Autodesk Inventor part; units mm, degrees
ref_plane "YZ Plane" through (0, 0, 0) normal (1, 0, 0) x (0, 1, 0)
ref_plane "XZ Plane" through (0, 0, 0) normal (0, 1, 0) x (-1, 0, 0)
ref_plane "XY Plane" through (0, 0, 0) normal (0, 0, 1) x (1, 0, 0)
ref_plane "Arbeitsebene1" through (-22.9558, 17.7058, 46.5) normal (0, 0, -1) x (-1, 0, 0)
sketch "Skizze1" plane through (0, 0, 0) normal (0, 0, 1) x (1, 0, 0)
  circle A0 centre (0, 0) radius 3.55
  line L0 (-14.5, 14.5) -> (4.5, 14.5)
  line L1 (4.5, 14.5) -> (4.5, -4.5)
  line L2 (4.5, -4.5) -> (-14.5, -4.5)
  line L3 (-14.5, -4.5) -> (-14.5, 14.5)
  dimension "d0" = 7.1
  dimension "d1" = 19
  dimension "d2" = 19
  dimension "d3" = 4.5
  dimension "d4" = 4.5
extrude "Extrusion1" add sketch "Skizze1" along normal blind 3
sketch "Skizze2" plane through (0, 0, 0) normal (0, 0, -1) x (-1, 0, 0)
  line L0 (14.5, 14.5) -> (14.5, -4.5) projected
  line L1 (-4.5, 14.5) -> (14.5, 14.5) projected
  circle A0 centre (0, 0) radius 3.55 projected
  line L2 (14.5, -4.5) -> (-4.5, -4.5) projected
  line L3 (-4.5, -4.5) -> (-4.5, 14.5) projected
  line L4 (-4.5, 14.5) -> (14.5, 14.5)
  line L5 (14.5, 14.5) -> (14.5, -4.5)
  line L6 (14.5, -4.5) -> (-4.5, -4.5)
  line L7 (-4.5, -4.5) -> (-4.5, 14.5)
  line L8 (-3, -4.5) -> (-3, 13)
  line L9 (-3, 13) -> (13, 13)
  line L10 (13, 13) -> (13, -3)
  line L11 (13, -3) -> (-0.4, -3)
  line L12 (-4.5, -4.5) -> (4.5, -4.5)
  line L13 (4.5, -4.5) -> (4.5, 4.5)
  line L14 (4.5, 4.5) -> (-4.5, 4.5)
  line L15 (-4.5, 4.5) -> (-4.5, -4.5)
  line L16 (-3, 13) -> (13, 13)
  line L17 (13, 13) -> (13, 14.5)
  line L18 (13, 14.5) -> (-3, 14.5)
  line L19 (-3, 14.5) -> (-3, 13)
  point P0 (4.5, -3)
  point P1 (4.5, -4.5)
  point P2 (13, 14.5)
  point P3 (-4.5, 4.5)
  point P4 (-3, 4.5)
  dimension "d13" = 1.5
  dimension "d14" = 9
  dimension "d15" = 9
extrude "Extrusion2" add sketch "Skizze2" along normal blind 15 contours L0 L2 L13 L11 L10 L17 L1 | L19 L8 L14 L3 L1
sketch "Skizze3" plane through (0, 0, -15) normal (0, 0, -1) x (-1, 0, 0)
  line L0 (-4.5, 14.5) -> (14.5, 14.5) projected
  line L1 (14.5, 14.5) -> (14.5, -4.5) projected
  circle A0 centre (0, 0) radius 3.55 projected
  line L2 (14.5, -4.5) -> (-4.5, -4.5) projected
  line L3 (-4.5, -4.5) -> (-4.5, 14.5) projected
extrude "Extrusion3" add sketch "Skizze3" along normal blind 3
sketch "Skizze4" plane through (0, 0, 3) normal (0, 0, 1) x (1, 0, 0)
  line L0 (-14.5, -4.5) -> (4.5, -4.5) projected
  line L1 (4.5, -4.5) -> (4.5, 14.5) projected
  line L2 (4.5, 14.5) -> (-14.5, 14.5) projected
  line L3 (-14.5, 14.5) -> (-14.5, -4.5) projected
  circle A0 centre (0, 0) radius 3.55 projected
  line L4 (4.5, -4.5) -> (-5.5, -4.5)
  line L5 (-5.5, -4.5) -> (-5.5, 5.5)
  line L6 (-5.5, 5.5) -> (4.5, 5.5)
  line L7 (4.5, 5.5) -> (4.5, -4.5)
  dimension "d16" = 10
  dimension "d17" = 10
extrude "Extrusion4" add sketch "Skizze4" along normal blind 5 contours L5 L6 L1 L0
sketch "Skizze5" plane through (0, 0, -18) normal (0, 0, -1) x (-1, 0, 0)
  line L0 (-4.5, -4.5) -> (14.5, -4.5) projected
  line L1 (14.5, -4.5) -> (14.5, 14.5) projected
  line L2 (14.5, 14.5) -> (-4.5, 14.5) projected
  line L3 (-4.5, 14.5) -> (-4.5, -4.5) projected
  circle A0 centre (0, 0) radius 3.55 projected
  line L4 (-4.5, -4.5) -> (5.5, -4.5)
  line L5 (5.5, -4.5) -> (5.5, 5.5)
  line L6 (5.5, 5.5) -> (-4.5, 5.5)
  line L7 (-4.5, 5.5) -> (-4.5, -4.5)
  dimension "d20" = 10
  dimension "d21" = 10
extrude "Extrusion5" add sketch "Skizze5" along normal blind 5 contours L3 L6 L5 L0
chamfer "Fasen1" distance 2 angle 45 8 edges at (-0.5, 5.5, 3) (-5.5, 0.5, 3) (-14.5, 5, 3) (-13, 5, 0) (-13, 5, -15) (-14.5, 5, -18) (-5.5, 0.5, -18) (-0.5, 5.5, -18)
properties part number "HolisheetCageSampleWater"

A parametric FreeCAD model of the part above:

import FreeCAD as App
import Part
import Sketcher


def edges_at(feature, points):
    """Names of the edges that pass closest to the given points."""
    edges = feature.Shape.Edges
    near = lambda p: min(range(len(edges)), key=lambda i: edges[i].distToShape(Part.Vertex(*p))[0])
    return sorted({f"Edge{near(p) + 1}" for p in points})

doc = App.newDocument("Part")
body = doc.addObject("PartDesign::Body", "Body")

# Sketch on XY plane
sketch1 = doc.addObject("Sketcher::SketchObject", "Sketch")
body.addObject(sketch1)
sketch1.AttachmentSupport = (doc.XY_Plane, [""])
sketch1.MapMode = "FlatFace"
sketch1.addGeometry([
    Part.LineSegment(App.Vector(4.5, 14.5, 0), App.Vector(-14.5, 14.5, 0)),  # 0
    Part.LineSegment(App.Vector(-14.5, 14.5, 0), App.Vector(-14.5, -4.5, 0)),  # 1
    Part.LineSegment(App.Vector(-14.5, -4.5, 0), App.Vector(4.5, -4.5, 0)),  # 2
    Part.LineSegment(App.Vector(4.5, -4.5, 0), App.Vector(4.5, 14.5, 0)),  # 3
    Part.Circle(App.Vector(0, 0, 0), App.Vector(0, 0, 1), 3.5),  # 4
], False)
sketch1.addConstraint([
    Sketcher.Constraint("Coincident", 0, 2, 1, 1),
    Sketcher.Constraint("Coincident", 1, 2, 2, 1),
    Sketcher.Constraint("Coincident", 2, 2, 3, 1),
    Sketcher.Constraint("Coincident", 3, 2, 0, 1),
    Sketcher.Constraint("Horizontal", 0),
    Sketcher.Constraint("Vertical", 1),
    Sketcher.Constraint("Horizontal", 2),
    Sketcher.Constraint("Vertical", 3),
    Sketcher.Constraint("Coincident", 4, 3, -1, 1),
    Sketcher.Constraint("Equal", 2, 1),
    Sketcher.Constraint("Diameter", 4, 7.1),
    Sketcher.Constraint("DistanceX", 0, 2, 0, 1, 19.0),
    Sketcher.Constraint("DistanceY", 1, 2, -1, 1, 4.5),
    Sketcher.Constraint("DistanceX", -1, 1, 2, 2, 4.5),
])
pad1 = doc.addObject("PartDesign::Pad", "Pad")
body.addObject(pad1)
pad1.Profile = sketch1
pad1.Length = 3

# Sketch on XY plane
sketch2 = doc.addObject("Sketcher::SketchObject", "Sketch001")
body.addObject(sketch2)
sketch2.AttachmentSupport = (doc.XY_Plane, [""])
sketch2.MapMode = "FlatFace"
sketch2.addGeometry([
    Part.LineSegment(App.Vector(-14.5, -4.5, 0), App.Vector(-14.5, 14.5, 0)),  # 0
    Part.LineSegment(App.Vector(-14.5, 14.5, 0), App.Vector(-13, 14.5, 0)),  # 1
    Part.LineSegment(App.Vector(-13, 14.5, 0), App.Vector(-13, -3, 0)),  # 2
    Part.LineSegment(App.Vector(-13, -3, 0), App.Vector(-4.5, -3, 0)),  # 3
    Part.LineSegment(App.Vector(-4.5, -3, 0), App.Vector(-4.5, -4.5, 0)),  # 4
    Part.LineSegment(App.Vector(-4.5, -4.5, 0), App.Vector(-14.5, -4.5, 0)),  # 5
    Part.LineSegment(App.Vector(3, 4.5, 0), App.Vector(3, 14.5, 0)),  # 6
    Part.LineSegment(App.Vector(3, 14.5, 0), App.Vector(4.5, 14.5, 0)),  # 7
    Part.LineSegment(App.Vector(4.5, 14.5, 0), App.Vector(4.5, 4.5, 0)),  # 8
    Part.LineSegment(App.Vector(4.5, 4.5, 0), App.Vector(3, 4.5, 0)),  # 9
], False)
sketch2.addConstraint([
    Sketcher.Constraint("Coincident", 0, 2, 1, 1),
    Sketcher.Constraint("Coincident", 1, 2, 2, 1),
    Sketcher.Constraint("Coincident", 2, 2, 3, 1),
    Sketcher.Constraint("Coincident", 3, 2, 4, 1),
    Sketcher.Constraint("Coincident", 4, 2, 5, 1),
    Sketcher.Constraint("Coincident", 5, 2, 0, 1),
    Sketcher.Constraint("Coincident", 6, 2, 7, 1),
    Sketcher.Constraint("Coincident", 7, 2, 8, 1),
    Sketcher.Constraint("Coincident", 8, 2, 9, 1),
    Sketcher.Constraint("Coincident", 9, 2, 6, 1),
    Sketcher.Constraint("Vertical", 0),
    Sketcher.Constraint("Horizontal", 1),
    Sketcher.Constraint("Vertical", 2),
    Sketcher.Constraint("Horizontal", 3),
    Sketcher.Constraint("Vertical", 4),
    Sketcher.Constraint("Horizontal", 5),
    Sketcher.Constraint("Vertical", 6),
    Sketcher.Constraint("Horizontal", 7),
    Sketcher.Constraint("Vertical", 8),
    Sketcher.Constraint("Horizontal", 9),
    Sketcher.Constraint("Symmetric", 4, 2, 8, 2, -1, 1),
    Sketcher.Constraint("Horizontal", 1, 2, 6, 2),
    Sketcher.Constraint("Equal", 1, 7),
    Sketcher.Constraint("Equal", 9, 4),
    Sketcher.Constraint("Equal", 5, 6),
    Sketcher.Constraint("DistanceX", 1, 1, 1, 2, 1.5),
    Sketcher.Constraint("DistanceX", 3, 2, 7, 2, 9.0),
    Sketcher.Constraint("DistanceY", 4, 2, 8, 2, 9.0),
    Sketcher.Constraint("DistanceX", 5, 2, 5, 1, 10.0),
])
pad2 = doc.addObject("PartDesign::Pad", "Pad001")
body.addObject(pad2)
pad2.Profile = sketch2
pad2.Length = 15
pad2.Reversed = True

# Sketch on XY plane
sketch3 = doc.addObject("Sketcher::SketchObject", "Sketch002")
body.addObject(sketch3)
sketch3.AttachmentSupport = (doc.XY_Plane, [""])
sketch3.MapMode = "FlatFace"
sketch3.AttachmentOffset = App.Placement(App.Vector(0, 0, -15), App.Rotation())
sketch3.addGeometry([
    Part.LineSegment(App.Vector(-14.5, 14.5, 0), App.Vector(4.5, 14.5, 0)),  # 0
    Part.LineSegment(App.Vector(4.5, 14.5, 0), App.Vector(4.5, -4.5, 0)),  # 1
    Part.LineSegment(App.Vector(4.5, -4.5, 0), App.Vector(-14.5, -4.5, 0)),  # 2
    Part.LineSegment(App.Vector(-14.5, -4.5, 0), App.Vector(-14.5, 14.5, 0)),  # 3
    Part.Circle(App.Vector(0, 0, 0), App.Vector(0, 0, 1), 3.5),  # 4
], False)
sketch3.addConstraint([
    Sketcher.Constraint("Coincident", 0, 2, 1, 1),
    Sketcher.Constraint("Coincident", 1, 2, 2, 1),
    Sketcher.Constraint("Coincident", 2, 2, 3, 1),
    Sketcher.Constraint("Coincident", 3, 2, 0, 1),
    Sketcher.Constraint("Horizontal", 0),
    Sketcher.Constraint("Vertical", 1),
    Sketcher.Constraint("Horizontal", 2),
    Sketcher.Constraint("Vertical", 3),
    Sketcher.Constraint("Coincident", 4, 3, -1, 1),
    Sketcher.Constraint("Equal", 2, 1),
    Sketcher.Constraint("Diameter", 4, 7.1),
    Sketcher.Constraint("DistanceX", 0, 1, 0, 2, 19.0),
    Sketcher.Constraint("DistanceX", -1, 1, 0, 2, 4.5),
    Sketcher.Constraint("DistanceY", -1, 1, 0, 2, 14.5),
])
pad3 = doc.addObject("PartDesign::Pad", "Pad002")
body.addObject(pad3)
pad3.Profile = sketch3
pad3.Length = 3
pad3.Reversed = True

# Sketch on XY plane
sketch4 = doc.addObject("Sketcher::SketchObject", "Sketch003")
body.addObject(sketch4)
sketch4.AttachmentSupport = (doc.XY_Plane, [""])
sketch4.MapMode = "FlatFace"
sketch4.AttachmentOffset = App.Placement(App.Vector(0, 0, 3), App.Rotation())
sketch4.addGeometry([
    Part.LineSegment(App.Vector(-5.5, 5.5, 0), App.Vector(-5.5, -4.5, 0)),  # 0
    Part.LineSegment(App.Vector(-5.5, -4.5, 0), App.Vector(4.5, -4.5, 0)),  # 1
    Part.LineSegment(App.Vector(4.5, -4.5, 0), App.Vector(4.5, 5.5, 0)),  # 2
    Part.LineSegment(App.Vector(4.5, 5.5, 0), App.Vector(-5.5, 5.5, 0)),  # 3
    Part.Circle(App.Vector(0, 0, 0), App.Vector(0, 0, 1), 3.5),  # 4
], False)
sketch4.addConstraint([
    Sketcher.Constraint("Coincident", 0, 2, 1, 1),
    Sketcher.Constraint("Coincident", 1, 2, 2, 1),
    Sketcher.Constraint("Coincident", 2, 2, 3, 1),
    Sketcher.Constraint("Coincident", 3, 2, 0, 1),
    Sketcher.Constraint("Vertical", 0),
    Sketcher.Constraint("Horizontal", 1),
    Sketcher.Constraint("Vertical", 2),
    Sketcher.Constraint("Horizontal", 3),
    Sketcher.Constraint("Coincident", 4, 3, -1, 1),
    Sketcher.Constraint("Equal", 3, 0),
    Sketcher.Constraint("DistanceX", 1, 1, 1, 2, 10.0),
    Sketcher.Constraint("Diameter", 4, 7.1),
    Sketcher.Constraint("DistanceX", 0, 2, -1, 1, 5.5),
    Sketcher.Constraint("DistanceY", 0, 2, -1, 1, 4.5),
])
pad4 = doc.addObject("PartDesign::Pad", "Pad003")
body.addObject(pad4)
pad4.Profile = sketch4
pad4.Length = 5

# Sketch on XY plane
sketch5 = doc.addObject("Sketcher::SketchObject", "Sketch004")
body.addObject(sketch5)
sketch5.AttachmentSupport = (doc.XY_Plane, [""])
sketch5.MapMode = "FlatFace"
sketch5.AttachmentOffset = App.Placement(App.Vector(0, 0, -18), App.Rotation())
sketch5.addGeometry([
    Part.LineSegment(App.Vector(4.5, 5.5, 0), App.Vector(4.5, -4.5, 0)),  # 0
    Part.LineSegment(App.Vector(4.5, -4.5, 0), App.Vector(-5.5, -4.5, 0)),  # 1
    Part.LineSegment(App.Vector(-5.5, -4.5, 0), App.Vector(-5.5, 5.5, 0)),  # 2
    Part.LineSegment(App.Vector(-5.5, 5.5, 0), App.Vector(4.5, 5.5, 0)),  # 3
    Part.Circle(App.Vector(0, 0, 0), App.Vector(0, 0, 1), 3.5),  # 4
], False)
sketch5.addConstraint([
    Sketcher.Constraint("Coincident", 0, 2, 1, 1),
    Sketcher.Constraint("Coincident", 1, 2, 2, 1),
    Sketcher.Constraint("Coincident", 2, 2, 3, 1),
    Sketcher.Constraint("Coincident", 3, 2, 0, 1),
    Sketcher.Constraint("Vertical", 0),
    Sketcher.Constraint("Horizontal", 1),
    Sketcher.Constraint("Vertical", 2),
    Sketcher.Constraint("Horizontal", 3),
    Sketcher.Constraint("Coincident", 4, 3, -1, 1),
    Sketcher.Constraint("Equal", 3, 0),
    Sketcher.Constraint("DistanceX", 1, 2, 1, 1, 10.0),
    Sketcher.Constraint("Diameter", 4, 7.1),
    Sketcher.Constraint("DistanceX", -1, 1, 0, 2, 4.5),
    Sketcher.Constraint("DistanceY", 0, 2, -1, 1, 4.5),
])
pad5 = doc.addObject("PartDesign::Pad", "Pad004")
body.addObject(pad5)
pad5.Profile = sketch5
pad5.Length = 5
pad5.Reversed = True
doc.recompute()

chamfer = doc.addObject("PartDesign::Chamfer", "Chamfer")
body.addObject(chamfer)
chamfer.Base = (pad5, edges_at(pad5, [
    (-0.5, 5.5, 3),
    (-5.5, 0.5, 3),
    (-14.5, 5, 3),
    (-13, 5, 0),
    (-13, 5, -15),
    (-14.5, 5, -18),
    (-5.5, 0.5, -18),
    (-0.5, 5.5, -18),
]))
chamfer.Size = 2

doc.recompute()
